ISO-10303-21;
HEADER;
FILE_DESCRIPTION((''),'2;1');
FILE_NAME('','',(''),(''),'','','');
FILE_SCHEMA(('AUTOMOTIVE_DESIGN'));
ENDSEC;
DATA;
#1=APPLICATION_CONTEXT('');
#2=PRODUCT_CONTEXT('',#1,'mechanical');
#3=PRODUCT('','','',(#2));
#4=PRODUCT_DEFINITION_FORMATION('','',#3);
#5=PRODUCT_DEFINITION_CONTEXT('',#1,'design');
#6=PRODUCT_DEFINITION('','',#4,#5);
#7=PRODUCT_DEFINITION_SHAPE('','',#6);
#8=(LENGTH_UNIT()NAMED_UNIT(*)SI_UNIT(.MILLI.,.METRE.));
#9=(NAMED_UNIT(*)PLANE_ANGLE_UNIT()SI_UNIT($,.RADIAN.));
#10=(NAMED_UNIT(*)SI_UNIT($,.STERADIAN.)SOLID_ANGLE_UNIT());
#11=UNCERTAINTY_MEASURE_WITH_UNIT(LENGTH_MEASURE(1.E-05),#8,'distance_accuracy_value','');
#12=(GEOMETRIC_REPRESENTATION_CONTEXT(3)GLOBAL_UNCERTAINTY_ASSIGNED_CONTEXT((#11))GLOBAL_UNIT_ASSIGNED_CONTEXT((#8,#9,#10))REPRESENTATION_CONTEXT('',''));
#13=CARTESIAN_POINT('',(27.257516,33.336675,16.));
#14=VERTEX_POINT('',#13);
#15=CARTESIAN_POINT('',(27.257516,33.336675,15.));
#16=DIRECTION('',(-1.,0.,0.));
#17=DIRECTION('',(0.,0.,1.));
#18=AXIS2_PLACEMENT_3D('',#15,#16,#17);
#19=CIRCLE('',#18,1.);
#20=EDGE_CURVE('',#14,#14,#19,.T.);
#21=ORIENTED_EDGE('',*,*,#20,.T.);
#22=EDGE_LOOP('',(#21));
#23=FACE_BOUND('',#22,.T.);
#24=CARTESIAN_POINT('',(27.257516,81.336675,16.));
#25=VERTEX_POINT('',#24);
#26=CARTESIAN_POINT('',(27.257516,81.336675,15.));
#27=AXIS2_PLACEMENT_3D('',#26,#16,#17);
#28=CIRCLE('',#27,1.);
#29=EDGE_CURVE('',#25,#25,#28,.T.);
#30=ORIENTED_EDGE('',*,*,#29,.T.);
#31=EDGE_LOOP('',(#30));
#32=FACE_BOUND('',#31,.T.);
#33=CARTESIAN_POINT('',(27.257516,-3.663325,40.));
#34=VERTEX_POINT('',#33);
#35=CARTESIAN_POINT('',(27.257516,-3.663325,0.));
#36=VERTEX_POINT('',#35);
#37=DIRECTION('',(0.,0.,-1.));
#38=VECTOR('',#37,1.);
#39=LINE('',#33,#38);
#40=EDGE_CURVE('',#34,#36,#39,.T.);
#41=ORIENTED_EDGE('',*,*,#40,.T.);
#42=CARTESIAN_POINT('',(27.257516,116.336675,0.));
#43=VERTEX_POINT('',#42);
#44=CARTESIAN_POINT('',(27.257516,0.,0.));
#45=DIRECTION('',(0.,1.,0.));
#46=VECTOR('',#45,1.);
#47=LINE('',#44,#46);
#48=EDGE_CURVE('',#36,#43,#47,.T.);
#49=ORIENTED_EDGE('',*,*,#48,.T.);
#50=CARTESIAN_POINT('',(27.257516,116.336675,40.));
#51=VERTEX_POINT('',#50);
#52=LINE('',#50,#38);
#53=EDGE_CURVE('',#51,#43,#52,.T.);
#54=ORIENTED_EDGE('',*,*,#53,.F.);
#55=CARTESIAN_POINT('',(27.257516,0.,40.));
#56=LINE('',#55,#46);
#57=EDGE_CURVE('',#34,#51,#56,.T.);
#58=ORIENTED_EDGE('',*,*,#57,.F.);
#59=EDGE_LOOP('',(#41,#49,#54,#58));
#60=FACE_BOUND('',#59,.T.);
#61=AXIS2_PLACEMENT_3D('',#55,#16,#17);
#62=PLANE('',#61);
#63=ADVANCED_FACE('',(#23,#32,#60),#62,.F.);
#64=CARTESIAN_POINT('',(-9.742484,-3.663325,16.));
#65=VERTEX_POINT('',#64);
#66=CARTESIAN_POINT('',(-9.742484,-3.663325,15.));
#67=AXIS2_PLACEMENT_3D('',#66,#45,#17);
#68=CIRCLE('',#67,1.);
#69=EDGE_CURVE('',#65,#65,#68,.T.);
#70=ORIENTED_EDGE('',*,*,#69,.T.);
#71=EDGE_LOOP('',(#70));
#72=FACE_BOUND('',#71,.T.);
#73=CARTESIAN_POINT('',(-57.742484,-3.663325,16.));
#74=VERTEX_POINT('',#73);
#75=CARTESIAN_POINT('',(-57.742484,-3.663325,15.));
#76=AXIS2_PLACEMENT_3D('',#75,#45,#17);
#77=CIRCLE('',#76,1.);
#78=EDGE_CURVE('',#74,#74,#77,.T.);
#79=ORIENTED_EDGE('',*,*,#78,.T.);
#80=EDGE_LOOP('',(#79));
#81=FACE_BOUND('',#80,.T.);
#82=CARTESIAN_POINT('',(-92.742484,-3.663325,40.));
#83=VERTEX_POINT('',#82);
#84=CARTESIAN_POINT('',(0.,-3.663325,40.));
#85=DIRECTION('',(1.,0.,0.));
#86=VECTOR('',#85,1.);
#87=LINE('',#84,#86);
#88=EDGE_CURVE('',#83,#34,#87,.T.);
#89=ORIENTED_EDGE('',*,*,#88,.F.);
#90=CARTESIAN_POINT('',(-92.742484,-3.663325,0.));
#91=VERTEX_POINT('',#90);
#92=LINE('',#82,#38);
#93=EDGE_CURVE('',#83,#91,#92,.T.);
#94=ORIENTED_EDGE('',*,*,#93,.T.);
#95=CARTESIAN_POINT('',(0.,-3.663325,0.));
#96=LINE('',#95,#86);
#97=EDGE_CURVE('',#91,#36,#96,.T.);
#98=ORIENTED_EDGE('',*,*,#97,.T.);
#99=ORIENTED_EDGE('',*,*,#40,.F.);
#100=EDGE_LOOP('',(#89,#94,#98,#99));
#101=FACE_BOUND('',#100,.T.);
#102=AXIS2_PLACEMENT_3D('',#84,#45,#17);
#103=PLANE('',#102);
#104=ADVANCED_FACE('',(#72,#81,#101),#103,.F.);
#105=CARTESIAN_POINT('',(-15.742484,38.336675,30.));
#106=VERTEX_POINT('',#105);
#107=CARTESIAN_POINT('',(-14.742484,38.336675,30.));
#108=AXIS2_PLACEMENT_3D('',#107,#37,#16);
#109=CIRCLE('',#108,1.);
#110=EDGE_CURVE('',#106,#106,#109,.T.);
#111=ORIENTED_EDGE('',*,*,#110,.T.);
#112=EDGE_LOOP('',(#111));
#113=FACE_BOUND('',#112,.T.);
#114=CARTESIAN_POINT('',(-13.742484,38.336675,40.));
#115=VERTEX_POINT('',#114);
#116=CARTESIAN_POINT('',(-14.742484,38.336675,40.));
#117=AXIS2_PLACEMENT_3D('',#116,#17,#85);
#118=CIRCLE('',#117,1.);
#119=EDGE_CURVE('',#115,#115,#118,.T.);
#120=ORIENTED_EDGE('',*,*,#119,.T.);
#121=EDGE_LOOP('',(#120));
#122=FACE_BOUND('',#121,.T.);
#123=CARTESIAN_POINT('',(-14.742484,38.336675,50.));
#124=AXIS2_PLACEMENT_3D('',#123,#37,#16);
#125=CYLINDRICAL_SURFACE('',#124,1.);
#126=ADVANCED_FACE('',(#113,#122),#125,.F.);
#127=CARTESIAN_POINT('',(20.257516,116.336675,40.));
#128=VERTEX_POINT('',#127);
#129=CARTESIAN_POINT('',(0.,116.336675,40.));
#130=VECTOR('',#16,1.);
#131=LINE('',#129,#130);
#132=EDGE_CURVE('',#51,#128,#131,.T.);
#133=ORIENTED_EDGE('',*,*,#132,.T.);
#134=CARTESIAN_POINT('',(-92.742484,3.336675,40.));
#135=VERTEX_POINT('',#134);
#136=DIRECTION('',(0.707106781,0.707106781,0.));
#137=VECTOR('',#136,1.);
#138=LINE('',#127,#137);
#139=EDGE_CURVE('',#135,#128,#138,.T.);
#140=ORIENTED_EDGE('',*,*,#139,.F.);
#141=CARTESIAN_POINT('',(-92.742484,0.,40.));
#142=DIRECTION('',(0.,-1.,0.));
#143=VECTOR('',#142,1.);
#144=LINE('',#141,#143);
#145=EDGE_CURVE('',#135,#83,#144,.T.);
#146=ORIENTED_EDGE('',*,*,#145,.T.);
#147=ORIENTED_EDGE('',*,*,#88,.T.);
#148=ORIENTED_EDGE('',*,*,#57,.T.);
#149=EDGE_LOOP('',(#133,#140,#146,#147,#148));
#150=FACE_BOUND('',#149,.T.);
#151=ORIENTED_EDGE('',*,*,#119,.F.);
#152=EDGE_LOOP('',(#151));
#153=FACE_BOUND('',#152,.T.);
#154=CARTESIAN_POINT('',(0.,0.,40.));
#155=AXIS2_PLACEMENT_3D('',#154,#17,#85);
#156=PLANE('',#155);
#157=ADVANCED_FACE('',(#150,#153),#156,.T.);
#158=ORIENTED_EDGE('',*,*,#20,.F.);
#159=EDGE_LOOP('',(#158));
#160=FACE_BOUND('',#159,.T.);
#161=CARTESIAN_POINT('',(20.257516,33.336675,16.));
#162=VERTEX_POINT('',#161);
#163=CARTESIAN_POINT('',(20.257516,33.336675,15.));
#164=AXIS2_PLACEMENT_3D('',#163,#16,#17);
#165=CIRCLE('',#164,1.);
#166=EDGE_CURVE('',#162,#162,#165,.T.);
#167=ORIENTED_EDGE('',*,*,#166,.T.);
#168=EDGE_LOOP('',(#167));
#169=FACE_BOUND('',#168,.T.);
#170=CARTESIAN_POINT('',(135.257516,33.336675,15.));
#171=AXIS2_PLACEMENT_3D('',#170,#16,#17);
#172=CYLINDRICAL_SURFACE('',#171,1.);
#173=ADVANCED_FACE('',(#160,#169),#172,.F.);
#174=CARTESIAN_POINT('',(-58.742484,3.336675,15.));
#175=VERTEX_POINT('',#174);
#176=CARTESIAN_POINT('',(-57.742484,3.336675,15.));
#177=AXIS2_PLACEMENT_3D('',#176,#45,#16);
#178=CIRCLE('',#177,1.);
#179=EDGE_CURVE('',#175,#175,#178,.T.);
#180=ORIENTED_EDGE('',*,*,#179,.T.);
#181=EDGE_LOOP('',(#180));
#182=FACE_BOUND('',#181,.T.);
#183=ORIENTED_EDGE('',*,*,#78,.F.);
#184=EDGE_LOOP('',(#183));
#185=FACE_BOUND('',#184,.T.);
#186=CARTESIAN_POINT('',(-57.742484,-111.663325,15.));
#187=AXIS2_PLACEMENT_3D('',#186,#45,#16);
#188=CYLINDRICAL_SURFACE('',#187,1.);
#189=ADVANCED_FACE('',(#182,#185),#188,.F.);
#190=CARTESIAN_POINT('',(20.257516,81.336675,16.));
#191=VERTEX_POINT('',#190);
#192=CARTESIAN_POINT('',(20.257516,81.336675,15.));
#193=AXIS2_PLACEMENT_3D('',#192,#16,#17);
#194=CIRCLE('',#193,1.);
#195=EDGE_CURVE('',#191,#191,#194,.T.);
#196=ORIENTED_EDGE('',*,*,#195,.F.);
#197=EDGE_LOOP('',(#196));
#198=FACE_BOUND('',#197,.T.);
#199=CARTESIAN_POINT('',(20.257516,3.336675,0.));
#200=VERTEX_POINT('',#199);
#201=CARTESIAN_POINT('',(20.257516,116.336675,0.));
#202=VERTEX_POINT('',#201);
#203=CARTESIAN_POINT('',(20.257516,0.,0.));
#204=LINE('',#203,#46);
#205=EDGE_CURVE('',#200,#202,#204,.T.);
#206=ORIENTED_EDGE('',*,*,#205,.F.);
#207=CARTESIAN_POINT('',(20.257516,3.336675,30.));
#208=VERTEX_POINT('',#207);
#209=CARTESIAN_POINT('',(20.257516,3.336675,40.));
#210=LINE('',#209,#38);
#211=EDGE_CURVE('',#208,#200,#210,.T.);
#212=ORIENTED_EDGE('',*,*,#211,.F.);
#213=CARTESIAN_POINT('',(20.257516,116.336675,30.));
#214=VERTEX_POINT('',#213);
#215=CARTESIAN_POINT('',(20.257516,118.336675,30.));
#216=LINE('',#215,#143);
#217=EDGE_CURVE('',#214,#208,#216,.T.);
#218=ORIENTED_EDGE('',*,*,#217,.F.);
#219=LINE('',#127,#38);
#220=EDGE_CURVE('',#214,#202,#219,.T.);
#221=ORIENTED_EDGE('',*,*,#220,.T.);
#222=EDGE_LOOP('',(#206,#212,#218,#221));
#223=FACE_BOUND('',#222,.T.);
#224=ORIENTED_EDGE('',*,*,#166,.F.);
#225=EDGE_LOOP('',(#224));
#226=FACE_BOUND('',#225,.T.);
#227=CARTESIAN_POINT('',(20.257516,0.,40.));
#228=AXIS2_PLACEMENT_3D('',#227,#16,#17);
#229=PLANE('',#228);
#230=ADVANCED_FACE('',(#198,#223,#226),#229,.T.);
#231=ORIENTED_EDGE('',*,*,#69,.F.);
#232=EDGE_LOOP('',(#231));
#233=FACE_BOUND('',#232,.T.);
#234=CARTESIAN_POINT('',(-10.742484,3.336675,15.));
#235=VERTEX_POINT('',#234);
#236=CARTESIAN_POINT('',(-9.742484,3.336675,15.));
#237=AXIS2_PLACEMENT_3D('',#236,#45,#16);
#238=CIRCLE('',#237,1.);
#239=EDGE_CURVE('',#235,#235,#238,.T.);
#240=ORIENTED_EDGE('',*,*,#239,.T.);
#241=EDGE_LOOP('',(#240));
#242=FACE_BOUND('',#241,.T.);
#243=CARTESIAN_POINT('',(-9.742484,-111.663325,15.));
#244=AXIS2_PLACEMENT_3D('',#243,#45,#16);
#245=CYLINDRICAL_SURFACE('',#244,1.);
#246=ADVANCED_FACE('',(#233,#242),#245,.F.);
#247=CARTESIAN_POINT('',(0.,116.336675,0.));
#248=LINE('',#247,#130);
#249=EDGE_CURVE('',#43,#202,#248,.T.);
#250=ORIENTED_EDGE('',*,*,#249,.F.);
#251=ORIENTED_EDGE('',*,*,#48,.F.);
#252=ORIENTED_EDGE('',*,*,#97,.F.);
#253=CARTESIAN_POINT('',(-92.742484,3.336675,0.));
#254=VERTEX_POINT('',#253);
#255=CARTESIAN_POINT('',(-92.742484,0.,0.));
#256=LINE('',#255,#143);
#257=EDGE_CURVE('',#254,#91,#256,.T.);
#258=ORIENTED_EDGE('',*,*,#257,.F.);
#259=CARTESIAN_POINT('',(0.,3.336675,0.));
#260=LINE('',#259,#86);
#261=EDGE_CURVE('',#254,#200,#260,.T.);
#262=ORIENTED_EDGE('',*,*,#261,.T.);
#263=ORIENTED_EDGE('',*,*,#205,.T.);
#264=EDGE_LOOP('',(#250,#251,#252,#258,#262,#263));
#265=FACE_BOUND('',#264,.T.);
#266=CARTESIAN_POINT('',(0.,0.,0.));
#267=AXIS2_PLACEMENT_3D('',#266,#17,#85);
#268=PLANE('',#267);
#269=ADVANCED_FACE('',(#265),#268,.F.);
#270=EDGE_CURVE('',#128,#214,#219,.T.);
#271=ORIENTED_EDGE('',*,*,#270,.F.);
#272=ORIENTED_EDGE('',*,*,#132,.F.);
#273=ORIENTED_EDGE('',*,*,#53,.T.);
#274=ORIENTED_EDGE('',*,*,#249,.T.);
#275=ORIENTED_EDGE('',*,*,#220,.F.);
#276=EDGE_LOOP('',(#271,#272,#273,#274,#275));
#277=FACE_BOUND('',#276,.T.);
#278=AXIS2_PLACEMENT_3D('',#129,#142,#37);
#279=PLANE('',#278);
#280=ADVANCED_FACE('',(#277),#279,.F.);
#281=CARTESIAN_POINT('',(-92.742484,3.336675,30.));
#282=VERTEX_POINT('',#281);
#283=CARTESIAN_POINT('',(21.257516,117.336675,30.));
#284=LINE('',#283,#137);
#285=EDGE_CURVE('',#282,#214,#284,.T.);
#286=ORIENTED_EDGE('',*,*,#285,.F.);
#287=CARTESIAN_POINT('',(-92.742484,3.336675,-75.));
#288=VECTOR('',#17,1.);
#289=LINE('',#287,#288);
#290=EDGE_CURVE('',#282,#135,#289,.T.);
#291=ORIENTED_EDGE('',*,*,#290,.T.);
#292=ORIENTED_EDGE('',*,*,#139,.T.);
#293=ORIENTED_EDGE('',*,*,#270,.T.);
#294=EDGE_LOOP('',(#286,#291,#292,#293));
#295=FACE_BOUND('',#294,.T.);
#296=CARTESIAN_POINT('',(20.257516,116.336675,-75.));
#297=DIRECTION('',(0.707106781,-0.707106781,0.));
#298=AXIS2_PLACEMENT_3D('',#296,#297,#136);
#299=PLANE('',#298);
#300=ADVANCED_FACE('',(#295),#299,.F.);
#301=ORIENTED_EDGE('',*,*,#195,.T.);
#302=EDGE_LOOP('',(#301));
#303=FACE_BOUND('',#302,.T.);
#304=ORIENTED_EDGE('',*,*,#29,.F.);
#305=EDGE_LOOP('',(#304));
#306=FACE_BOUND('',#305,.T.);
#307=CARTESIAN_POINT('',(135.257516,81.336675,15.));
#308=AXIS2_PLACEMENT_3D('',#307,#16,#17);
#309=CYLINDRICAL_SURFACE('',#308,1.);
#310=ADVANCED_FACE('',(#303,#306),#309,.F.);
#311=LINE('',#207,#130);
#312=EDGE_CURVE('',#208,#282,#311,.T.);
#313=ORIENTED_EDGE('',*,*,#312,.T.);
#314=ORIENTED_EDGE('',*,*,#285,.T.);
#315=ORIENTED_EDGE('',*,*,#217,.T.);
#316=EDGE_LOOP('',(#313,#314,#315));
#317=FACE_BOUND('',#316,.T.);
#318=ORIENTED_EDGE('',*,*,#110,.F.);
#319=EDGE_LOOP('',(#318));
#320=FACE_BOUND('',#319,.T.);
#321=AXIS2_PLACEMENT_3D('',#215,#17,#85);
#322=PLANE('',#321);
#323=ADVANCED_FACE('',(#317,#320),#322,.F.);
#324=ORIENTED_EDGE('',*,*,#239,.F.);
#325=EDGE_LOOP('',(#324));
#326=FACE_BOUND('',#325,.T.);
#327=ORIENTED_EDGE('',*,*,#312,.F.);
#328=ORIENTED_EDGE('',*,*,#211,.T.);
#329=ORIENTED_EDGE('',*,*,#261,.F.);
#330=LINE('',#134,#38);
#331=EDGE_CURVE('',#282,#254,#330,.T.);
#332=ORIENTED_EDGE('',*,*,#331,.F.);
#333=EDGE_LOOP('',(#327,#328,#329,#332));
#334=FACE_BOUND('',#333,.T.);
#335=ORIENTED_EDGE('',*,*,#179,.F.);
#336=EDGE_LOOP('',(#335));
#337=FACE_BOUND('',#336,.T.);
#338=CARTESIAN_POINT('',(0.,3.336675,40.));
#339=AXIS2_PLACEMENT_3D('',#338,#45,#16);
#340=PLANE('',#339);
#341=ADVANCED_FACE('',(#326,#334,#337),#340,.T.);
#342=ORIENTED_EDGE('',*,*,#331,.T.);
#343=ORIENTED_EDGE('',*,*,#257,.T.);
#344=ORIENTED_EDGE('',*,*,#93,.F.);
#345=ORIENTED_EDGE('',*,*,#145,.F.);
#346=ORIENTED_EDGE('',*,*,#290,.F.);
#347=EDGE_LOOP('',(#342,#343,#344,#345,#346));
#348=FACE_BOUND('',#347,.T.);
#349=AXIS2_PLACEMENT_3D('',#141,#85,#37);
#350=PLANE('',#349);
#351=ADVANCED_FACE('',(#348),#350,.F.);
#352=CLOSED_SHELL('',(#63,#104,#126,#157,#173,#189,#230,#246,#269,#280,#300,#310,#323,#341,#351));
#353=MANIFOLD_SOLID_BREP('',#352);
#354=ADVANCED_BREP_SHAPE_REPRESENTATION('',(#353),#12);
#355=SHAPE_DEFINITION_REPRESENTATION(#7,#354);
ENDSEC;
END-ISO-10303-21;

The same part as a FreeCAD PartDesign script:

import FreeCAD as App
import Part
import Sketcher
from FreeCAD import Vector


def add_polygon(sketch, points):
    """Adds a closed chain of lines whose ends are joined by coincident constraints."""
    first, n = sketch.GeometryCount, len(points)
    for a, b in zip(points, points[1:] + points[:1]):
        sketch.addGeometry(Part.LineSegment(App.Vector(*a, 0), App.Vector(*b, 0)), False)
    for i in range(n):
        sketch.addConstraint(Sketcher.Constraint("Coincident", first + i, 2, first + (i + 1) % n, 1))

doc = App.newDocument("Part")
body = doc.addObject("PartDesign::Body", "Body")

sketch1 = doc.addObject("Sketcher::SketchObject", "Sketch")
body.addObject(sketch1)
sketch1.AttachmentSupport = (doc.XY_Plane, [""])
sketch1.MapMode = "FlatFace"
add_polygon(sketch1, [(20, 116), (20, 3), (-93, 3), (-93, -4), (27, -4), (27, 116)])
sketch1.addConstraint([
    Sketcher.Constraint("Vertical", 0),
    Sketcher.Constraint("Horizontal", 1),
    Sketcher.Constraint("Vertical", 2),
    Sketcher.Constraint("Horizontal", 3),
    Sketcher.Constraint("Vertical", 4),
    Sketcher.Constraint("Horizontal", 5),
    Sketcher.Constraint("Equal", 1, 0),
    Sketcher.Constraint("Equal", 5, 2),
    Sketcher.Constraint("DistanceX", 1, 2, 1, 1, 113.0),
    Sketcher.Constraint("DistanceX", 3, 1, 3, 2, 120.0),
    Sketcher.Constraint("DistanceX", -1, 1, 0, 2, 20.257516),
    Sketcher.Constraint("DistanceY", -1, 1, 0, 2, 3.336675),
])
pad1 = doc.addObject("PartDesign::Pad", "Pad")
body.addObject(pad1)
pad1.Profile = sketch1
pad1.Length = 40

sketch2 = doc.addObject("Sketcher::SketchObject", "Sketch001")
body.addObject(sketch2)
sketch2.AttachmentSupport = (doc.XZ_Plane, [""])
sketch2.MapMode = "FlatFace"
sketch2.AttachmentOffset = App.Placement(Vector(0, 0, -3.336675), App.Rotation())
add_polygon(sketch2, [(-93, 30), (-93, 40), (20, 40), (20, 30)])
sketch2.addConstraint([
    Sketcher.Constraint("Vertical", 0),
    Sketcher.Constraint("Horizontal", 1),
    Sketcher.Constraint("Vertical", 2),
    Sketcher.Constraint("Horizontal", 3),
    Sketcher.Constraint("DistanceX", 1, 1, 1, 2, 113.0),
    Sketcher.Constraint("DistanceY", 0, 1, 0, 2, 10.0),
    Sketcher.Constraint("DistanceY", -1, 1, 0, 2, 40.0),
    Sketcher.Constraint("DistanceX", 0, 2, -1, 1, 92.742484),
])
pad2 = doc.addObject("PartDesign::Pad", "Pad001")
body.addObject(pad2)
pad2.Profile = sketch2
pad2.Length = 115
pad2.Reversed = True

sketch3 = doc.addObject("Sketcher::SketchObject", "Sketch002")
body.addObject(sketch3)
sketch3.AttachmentSupport = (doc.XY_Plane, [""])
sketch3.MapMode = "FlatFace"
sketch3.AttachmentOffset = App.Placement(Vector(0, 0, 40), App.Rotation())
add_polygon(sketch3, [(-92.7, 3.3), (20.3, 116.3), (20.3, 118.3), (-92.7, 118.3)])
sketch3.addConstraint([
    Sketcher.Constraint("Vertical", 1),
    Sketcher.Constraint("Horizontal", 2),
    Sketcher.Constraint("Vertical", 3),
    Sketcher.Constraint("DistanceX", 2, 2, 2, 1, 113.0),
    Sketcher.Constraint("DistanceY", 1, 1, 1, 2, 2.0),
    Sketcher.Constraint("DistanceY", 3, 2, 3, 1, 115.0),
    Sketcher.Constraint("DistanceX", -1, 1, 0, 2, 20.257516),
    Sketcher.Constraint("DistanceY", -1, 1, 0, 2, 116.336675),
])
pocket1 = doc.addObject("PartDesign::Pocket", "Pocket")
body.addObject(pocket1)
pocket1.Profile = sketch3
pocket1.Length = 115

sketch4 = doc.addObject("Sketcher::SketchObject", "Sketch003")
body.addObject(sketch4)
sketch4.AttachmentSupport = (doc.XZ_Plane, [""])
sketch4.MapMode = "FlatFace"
sketch4.AttachmentOffset = App.Placement(Vector(0, 0, -3.336675), App.Rotation())
sketch4.addGeometry(Part.Circle(Vector(-57.7, 15, 0), Vector(0, 0, 1), 1), False)
sketch4.addConstraint([
    Sketcher.Constraint("Diameter", 0, 2.0),
    Sketcher.Constraint("DistanceY", -1, 1, 0, 3, 15.0),
    Sketcher.Constraint("DistanceX", 0, 3, -1, 1, 57.742484),
])
pocket2 = doc.addObject("PartDesign::Pocket", "Pocket001")
body.addObject(pocket2)
pocket2.Profile = sketch4
pocket2.Length = 115
pocket2.Reversed = True

sketch5 = doc.addObject("Sketcher::SketchObject", "Sketch004")
body.addObject(sketch5)
sketch5.AttachmentSupport = (doc.XZ_Plane, [""])
sketch5.MapMode = "FlatFace"
sketch5.AttachmentOffset = App.Placement(Vector(0, 0, -3.336675), App.Rotation())
sketch5.addGeometry(Part.Circle(Vector(-9.7, 15, 0), Vector(0, 0, 1), 1), False)
sketch5.addConstraint([
    Sketcher.Constraint("Diameter", 0, 2.0),
    Sketcher.Constraint("DistanceY", -1, 1, 0, 3, 15.0),
    Sketcher.Constraint("DistanceX", 0, 3, -1, 1, 9.742484),
])
pocket3 = doc.addObject("PartDesign::Pocket", "Pocket002")
body.addObject(pocket3)
pocket3.Profile = sketch5
pocket3.Length = 115
pocket3.Reversed = True

sketch6 = doc.addObject("Sketcher::SketchObject", "Sketch005")
body.addObject(sketch6)
sketch6.AttachmentSupport = (doc.YZ_Plane, [""])
sketch6.MapMode = "FlatFace"
sketch6.AttachmentOffset = App.Placement(Vector(0, 0, 20.257516), App.Rotation())
sketch6.addGeometry(Part.Circle(Vector(81.3, 15, 0), Vector(0, 0, 1), 1), False)
sketch6.addConstraint([
    Sketcher.Constraint("Diameter", 0, 2.0),
    Sketcher.Constraint("DistanceY", -1, 1, 0, 3, 15.0),
    Sketcher.Constraint("DistanceX", -1, 1, 0, 3, 81.336675),
])
pocket4 = doc.addObject("PartDesign::Pocket", "Pocket003")
body.addObject(pocket4)
pocket4.Profile = sketch6
pocket4.Length = 115
pocket4.Reversed = True

sketch7 = doc.addObject("Sketcher::SketchObject", "Sketch006")
body.addObject(sketch7)
sketch7.AttachmentSupport = (doc.YZ_Plane, [""])
sketch7.MapMode = "FlatFace"
sketch7.AttachmentOffset = App.Placement(Vector(0, 0, 20.257516), App.Rotation())
sketch7.addGeometry(Part.Circle(Vector(33.3, 15, 0), Vector(0, 0, 1), 1), False)
sketch7.addConstraint([
    Sketcher.Constraint("Diameter", 0, 2.0),
    Sketcher.Constraint("DistanceY", -1, 1, 0, 3, 15.0),
    Sketcher.Constraint("DistanceX", -1, 1, 0, 3, 33.336675),
])
pocket5 = doc.addObject("PartDesign::Pocket", "Pocket004")
body.addObject(pocket5)
pocket5.Profile = sketch7
pocket5.Length = 115
pocket5.Reversed = True

sketch8 = doc.addObject("Sketcher::SketchObject", "Sketch007")
body.addObject(sketch8)
sketch8.AttachmentSupport = (doc.XY_Plane, [""])
sketch8.MapMode = "FlatFace"
sketch8.AttachmentOffset = App.Placement(Vector(0, 0, 30), App.Rotation())
sketch8.addGeometry(Part.Circle(Vector(-14.7, 38.3, 0), Vector(0, 0, 1), 1), False)
sketch8.addConstraint([
    Sketcher.Constraint("Diameter", 0, 2.0),
    Sketcher.Constraint("DistanceX", 0, 3, -1, 1, 14.742484),
    Sketcher.Constraint("DistanceY", -1, 1, 0, 3, 38.336675),
])
pocket6 = doc.addObject("PartDesign::Pocket", "Pocket005")
body.addObject(pocket6)
pocket6.Profile = sketch8
pocket6.Length = 20
pocket6.Reversed = True

doc.recompute()
